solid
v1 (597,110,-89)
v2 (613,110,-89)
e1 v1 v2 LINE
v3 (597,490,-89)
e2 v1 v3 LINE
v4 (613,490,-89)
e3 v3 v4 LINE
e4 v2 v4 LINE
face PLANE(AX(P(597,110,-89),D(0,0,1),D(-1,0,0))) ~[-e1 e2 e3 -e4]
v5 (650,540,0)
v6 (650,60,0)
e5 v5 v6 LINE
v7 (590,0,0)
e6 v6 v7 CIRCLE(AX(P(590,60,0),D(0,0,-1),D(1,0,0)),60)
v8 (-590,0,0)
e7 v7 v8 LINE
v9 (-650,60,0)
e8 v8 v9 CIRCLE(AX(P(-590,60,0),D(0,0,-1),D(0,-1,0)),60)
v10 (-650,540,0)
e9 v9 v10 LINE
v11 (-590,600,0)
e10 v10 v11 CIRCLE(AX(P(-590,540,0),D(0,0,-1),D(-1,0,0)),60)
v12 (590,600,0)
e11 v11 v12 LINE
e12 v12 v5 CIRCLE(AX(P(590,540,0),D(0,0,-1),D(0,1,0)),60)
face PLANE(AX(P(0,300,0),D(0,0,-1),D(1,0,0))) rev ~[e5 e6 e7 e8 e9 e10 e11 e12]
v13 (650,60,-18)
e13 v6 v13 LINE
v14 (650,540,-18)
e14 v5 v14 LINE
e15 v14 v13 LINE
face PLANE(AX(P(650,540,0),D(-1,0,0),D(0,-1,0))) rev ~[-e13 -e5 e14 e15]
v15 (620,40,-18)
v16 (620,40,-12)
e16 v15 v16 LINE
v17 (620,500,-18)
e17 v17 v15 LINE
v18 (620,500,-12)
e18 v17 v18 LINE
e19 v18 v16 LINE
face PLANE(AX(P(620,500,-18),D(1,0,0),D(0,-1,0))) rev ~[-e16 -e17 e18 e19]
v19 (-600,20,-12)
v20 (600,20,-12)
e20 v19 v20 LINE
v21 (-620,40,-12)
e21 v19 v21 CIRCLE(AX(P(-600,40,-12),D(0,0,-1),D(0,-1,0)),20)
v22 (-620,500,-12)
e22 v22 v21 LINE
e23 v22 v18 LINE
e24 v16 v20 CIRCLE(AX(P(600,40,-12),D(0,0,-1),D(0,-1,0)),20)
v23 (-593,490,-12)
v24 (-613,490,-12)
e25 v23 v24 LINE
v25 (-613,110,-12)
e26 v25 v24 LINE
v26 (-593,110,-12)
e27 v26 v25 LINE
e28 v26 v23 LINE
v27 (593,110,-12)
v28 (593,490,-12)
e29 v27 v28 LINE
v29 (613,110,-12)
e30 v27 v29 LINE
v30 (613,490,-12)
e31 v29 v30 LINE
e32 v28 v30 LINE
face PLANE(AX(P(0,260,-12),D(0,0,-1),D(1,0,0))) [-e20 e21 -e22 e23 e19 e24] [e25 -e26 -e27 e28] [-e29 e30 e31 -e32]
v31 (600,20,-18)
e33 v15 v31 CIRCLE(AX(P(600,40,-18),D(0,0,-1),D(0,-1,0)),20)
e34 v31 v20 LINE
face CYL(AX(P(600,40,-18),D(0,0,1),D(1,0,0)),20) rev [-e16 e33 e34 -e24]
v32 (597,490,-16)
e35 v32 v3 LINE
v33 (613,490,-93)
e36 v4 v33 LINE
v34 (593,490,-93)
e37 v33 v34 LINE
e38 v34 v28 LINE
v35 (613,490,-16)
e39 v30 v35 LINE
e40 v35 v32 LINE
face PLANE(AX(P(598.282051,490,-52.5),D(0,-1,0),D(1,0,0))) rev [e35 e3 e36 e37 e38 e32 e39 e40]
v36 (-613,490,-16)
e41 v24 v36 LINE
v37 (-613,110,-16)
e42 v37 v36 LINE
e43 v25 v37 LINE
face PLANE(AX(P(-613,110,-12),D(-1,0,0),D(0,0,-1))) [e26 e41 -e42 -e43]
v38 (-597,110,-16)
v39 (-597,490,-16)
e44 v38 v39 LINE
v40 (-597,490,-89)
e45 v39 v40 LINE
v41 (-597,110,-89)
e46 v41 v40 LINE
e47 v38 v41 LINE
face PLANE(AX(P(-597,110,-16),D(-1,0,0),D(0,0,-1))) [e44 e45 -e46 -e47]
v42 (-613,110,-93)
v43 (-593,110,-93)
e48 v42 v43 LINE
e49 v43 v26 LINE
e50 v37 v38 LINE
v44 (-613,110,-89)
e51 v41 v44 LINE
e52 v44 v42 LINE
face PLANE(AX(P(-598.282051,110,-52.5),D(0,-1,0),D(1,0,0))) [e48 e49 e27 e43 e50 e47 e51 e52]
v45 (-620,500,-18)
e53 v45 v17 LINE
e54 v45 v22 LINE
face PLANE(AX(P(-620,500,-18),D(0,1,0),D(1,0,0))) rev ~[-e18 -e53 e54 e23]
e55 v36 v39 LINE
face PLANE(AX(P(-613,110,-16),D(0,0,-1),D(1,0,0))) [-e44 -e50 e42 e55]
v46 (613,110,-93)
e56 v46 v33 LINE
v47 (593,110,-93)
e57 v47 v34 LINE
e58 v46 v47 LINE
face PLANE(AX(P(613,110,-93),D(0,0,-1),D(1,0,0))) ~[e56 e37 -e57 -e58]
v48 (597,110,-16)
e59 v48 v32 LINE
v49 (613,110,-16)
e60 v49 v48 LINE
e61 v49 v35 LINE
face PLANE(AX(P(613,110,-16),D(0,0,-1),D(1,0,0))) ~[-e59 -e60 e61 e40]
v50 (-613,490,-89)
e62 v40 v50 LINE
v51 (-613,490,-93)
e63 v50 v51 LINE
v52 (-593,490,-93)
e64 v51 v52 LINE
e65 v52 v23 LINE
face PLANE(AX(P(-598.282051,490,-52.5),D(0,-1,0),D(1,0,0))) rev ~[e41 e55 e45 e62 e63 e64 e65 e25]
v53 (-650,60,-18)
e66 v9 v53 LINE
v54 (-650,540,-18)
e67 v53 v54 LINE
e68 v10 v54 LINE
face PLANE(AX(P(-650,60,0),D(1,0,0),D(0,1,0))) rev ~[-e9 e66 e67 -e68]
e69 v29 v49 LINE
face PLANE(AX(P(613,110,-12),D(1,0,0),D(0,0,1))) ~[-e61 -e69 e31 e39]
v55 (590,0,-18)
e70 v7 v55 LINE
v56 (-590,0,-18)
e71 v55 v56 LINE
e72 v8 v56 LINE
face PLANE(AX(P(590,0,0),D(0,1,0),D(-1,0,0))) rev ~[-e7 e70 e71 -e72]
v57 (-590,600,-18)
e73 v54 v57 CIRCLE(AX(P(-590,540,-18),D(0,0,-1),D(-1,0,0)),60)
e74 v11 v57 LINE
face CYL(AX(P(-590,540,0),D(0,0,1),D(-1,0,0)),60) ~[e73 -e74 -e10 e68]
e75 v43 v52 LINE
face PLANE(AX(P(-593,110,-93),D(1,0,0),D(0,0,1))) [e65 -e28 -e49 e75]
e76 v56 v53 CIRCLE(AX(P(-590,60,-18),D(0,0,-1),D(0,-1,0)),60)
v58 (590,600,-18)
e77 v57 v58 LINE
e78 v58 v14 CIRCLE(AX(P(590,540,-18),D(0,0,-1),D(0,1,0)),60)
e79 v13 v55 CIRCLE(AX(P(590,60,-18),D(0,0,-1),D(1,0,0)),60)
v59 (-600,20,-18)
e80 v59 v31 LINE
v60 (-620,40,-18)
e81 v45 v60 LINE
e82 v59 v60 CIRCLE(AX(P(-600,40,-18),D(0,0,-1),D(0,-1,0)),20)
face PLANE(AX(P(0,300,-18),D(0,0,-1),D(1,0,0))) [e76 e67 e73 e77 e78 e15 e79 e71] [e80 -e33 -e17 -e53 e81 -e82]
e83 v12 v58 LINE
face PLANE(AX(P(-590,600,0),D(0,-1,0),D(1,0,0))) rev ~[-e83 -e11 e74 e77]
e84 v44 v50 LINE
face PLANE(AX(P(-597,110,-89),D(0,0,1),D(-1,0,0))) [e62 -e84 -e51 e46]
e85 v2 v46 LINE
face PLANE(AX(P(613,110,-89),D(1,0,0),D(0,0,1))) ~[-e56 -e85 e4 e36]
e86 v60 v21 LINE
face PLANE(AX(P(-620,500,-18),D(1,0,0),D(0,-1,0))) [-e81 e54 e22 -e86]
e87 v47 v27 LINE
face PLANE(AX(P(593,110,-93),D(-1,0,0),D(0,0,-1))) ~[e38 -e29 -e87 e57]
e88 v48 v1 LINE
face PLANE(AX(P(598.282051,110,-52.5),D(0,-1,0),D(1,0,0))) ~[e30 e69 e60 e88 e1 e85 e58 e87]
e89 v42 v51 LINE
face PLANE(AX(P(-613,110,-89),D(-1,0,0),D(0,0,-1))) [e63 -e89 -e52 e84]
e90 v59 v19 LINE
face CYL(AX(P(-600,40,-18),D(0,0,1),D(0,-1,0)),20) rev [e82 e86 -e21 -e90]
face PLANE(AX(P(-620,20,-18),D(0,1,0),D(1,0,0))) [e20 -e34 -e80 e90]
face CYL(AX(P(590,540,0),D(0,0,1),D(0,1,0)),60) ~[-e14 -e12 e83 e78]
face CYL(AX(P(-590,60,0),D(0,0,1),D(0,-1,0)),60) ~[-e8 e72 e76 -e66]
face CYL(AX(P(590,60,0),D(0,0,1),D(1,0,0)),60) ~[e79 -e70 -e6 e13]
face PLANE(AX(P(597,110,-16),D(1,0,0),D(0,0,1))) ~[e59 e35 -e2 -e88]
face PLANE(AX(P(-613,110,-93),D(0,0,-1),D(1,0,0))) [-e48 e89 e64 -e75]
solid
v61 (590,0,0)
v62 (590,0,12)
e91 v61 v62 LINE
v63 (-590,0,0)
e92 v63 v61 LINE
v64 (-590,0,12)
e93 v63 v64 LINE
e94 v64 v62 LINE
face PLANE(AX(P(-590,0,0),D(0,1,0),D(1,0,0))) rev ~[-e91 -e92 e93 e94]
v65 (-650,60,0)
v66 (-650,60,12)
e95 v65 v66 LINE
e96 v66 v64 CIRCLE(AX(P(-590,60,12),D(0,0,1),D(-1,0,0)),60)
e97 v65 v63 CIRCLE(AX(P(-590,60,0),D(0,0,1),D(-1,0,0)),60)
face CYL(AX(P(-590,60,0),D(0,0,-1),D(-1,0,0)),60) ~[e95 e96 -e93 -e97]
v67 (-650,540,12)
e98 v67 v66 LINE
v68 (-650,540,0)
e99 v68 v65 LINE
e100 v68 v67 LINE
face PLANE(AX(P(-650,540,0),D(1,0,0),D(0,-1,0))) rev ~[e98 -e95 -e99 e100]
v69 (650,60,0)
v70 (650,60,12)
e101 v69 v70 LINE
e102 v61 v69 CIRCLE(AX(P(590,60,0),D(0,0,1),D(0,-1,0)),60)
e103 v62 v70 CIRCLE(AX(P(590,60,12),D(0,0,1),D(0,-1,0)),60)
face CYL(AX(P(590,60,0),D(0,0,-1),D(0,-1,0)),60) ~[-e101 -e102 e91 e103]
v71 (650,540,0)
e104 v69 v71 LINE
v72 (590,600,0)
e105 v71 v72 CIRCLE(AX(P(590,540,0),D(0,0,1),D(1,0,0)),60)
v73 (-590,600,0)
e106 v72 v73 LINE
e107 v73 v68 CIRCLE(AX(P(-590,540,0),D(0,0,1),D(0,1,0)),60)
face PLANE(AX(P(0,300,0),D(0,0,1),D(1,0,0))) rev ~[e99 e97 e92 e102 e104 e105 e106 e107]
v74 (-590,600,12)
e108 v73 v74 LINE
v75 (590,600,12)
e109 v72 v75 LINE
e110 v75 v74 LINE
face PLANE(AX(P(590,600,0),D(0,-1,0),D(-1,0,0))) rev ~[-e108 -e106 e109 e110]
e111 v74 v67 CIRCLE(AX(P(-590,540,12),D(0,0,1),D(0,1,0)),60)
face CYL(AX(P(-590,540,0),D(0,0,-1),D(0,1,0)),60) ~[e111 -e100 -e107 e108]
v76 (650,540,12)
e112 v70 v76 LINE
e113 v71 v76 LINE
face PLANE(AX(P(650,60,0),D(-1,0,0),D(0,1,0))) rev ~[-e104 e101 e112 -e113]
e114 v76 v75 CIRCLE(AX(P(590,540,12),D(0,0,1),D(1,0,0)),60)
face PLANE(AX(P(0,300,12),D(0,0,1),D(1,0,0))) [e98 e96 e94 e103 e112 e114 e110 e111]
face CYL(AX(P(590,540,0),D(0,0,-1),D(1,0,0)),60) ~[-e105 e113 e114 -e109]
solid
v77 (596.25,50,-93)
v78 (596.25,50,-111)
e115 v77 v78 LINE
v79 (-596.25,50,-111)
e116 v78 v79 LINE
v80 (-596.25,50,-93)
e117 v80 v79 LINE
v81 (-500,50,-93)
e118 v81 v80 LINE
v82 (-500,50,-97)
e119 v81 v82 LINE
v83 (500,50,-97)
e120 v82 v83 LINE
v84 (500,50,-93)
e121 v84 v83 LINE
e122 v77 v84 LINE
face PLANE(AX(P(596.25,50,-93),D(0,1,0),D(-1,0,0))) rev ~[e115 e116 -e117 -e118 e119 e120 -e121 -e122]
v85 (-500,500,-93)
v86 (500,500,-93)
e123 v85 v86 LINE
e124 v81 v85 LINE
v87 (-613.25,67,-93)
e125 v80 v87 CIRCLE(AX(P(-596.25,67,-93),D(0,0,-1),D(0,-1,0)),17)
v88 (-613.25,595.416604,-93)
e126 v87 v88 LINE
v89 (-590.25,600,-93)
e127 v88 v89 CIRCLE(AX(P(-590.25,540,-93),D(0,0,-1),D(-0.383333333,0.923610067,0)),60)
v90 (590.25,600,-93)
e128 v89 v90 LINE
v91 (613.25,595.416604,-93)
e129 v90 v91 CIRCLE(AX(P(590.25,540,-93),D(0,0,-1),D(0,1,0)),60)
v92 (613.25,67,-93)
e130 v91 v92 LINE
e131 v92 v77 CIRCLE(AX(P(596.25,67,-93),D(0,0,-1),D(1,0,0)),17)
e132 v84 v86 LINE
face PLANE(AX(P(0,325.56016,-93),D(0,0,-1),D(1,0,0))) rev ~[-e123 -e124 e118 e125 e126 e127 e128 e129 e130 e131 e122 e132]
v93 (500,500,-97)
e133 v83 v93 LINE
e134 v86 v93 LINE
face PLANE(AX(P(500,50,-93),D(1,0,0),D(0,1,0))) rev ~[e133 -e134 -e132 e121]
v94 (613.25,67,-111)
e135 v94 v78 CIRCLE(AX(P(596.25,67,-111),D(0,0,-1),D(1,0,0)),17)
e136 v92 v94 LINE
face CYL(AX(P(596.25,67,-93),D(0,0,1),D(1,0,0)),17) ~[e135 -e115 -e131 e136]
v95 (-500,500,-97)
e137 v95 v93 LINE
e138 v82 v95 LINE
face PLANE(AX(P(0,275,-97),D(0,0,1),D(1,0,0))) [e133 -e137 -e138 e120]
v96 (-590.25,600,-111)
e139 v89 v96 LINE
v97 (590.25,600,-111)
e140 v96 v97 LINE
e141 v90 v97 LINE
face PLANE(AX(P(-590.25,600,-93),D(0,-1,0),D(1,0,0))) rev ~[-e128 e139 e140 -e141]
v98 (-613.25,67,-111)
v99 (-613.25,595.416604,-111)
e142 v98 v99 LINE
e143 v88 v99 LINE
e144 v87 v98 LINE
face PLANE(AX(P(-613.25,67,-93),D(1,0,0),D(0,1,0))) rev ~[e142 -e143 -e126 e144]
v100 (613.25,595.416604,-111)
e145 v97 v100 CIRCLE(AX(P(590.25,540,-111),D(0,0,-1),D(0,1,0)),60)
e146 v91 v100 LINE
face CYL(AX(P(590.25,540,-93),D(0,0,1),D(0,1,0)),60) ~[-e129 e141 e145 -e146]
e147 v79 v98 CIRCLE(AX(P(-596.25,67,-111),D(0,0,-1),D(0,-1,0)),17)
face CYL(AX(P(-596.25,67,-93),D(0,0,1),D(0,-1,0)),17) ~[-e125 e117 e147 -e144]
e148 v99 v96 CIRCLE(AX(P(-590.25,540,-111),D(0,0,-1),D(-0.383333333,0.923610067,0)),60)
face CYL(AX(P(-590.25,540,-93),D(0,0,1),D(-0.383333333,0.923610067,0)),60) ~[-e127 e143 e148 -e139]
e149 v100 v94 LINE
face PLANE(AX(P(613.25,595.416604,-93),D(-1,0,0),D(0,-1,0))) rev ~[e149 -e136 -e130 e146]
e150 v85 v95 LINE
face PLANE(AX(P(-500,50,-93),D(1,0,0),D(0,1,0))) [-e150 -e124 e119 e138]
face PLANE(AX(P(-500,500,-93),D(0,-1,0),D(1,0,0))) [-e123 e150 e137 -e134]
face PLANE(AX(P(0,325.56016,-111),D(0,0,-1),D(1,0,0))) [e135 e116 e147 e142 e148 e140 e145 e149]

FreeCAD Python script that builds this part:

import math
import FreeCAD as App
import Part
import Sketcher
from FreeCAD import Vector


def edges_at(feature, points):
    """Names of the edges that pass closest to the given points."""
    edges = feature.Shape.Edges
    near = lambda p: min(range(len(edges)), key=lambda i: edges[i].distToShape(Part.Vertex(*p))[0])
    return sorted({f"Edge{near(p) + 1}" for p in points})

doc = App.newDocument("Part")
body = doc.addObject("PartDesign::Body", "Body")

# Sketch on XY plane
sketch1 = body.newObject("Sketcher::SketchObject", "Sketch")
sketch1.AttachmentSupport = (doc.getObject("XY_Plane"), [""])
sketch1.MapMode = "FlatFace"
sketch1.addGeometry([
    Part.ArcOfCircle(Part.Circle(Vector(-590, 60, 0), Vector(0, 0, 1), 60), math.radians(180), math.radians(270)),  # 0
    Part.LineSegment(Vector(-590, 0, 0), Vector(590, 0, 0)),  # 1
    Part.ArcOfCircle(Part.Circle(Vector(590, 60, 0), Vector(0, 0, 1), 60), math.radians(-90), math.radians(0)),  # 2
    Part.LineSegment(Vector(650, 60, 0), Vector(650, 540, 0)),  # 3
    Part.ArcOfCircle(Part.Circle(Vector(590, 540, 0), Vector(0, 0, 1), 60), math.radians(0), math.radians(90)),  # 4
    Part.LineSegment(Vector(590, 600, 0), Vector(-590, 600, 0)),  # 5
    Part.ArcOfCircle(Part.Circle(Vector(-590, 540, 0), Vector(0, 0, 1), 60), math.radians(90), math.radians(180)),  # 6
    Part.LineSegment(Vector(-650, 540, 0), Vector(-650, 60, 0)),  # 7
], False)
sketch1.addConstraint([
    Sketcher.Constraint("Tangent", 0, 2, 1, 1),
    Sketcher.Constraint("Tangent", 1, 2, 2, 1),
    Sketcher.Constraint("Tangent", 2, 2, 3, 1),
    Sketcher.Constraint("Tangent", 3, 2, 4, 1),
    Sketcher.Constraint("Tangent", 4, 2, 5, 1),
    Sketcher.Constraint("Tangent", 5, 2, 6, 1),
    Sketcher.Constraint("Tangent", 6, 2, 7, 1),
    Sketcher.Constraint("Tangent", 7, 2, 0, 1),
    Sketcher.Constraint("Horizontal", 1),
    Sketcher.Constraint("Vertical", 3),
    Sketcher.Constraint("Horizontal", 5),
    Sketcher.Constraint("Vertical", 7),
    Sketcher.Constraint("Equal", 0, 2),
    Sketcher.Constraint("Equal", 2, 4),
    Sketcher.Constraint("Equal", 4, 6),
    Sketcher.Constraint("Symmetric", 0, 2, 1, 2, -1, 1),
    Sketcher.Constraint("Radius", 0, 60.0),
    Sketcher.Constraint("DistanceX", 1, 1, 1, 2, 1180.0),
    Sketcher.Constraint("DistanceY", 3, 1, 3, 2, 480.0),
])
pad1 = body.newObject("PartDesign::Pad", "Pad")
pad1.Profile = sketch1
pad1.Length = 12
body2 = doc.addObject("PartDesign::Body", "Body001")

# Sketch on XY plane
sketch2 = body2.newObject("Sketcher::SketchObject", "Sketch001")
sketch2.AttachmentSupport = (doc.getObject("XY_Plane001"), [""])
sketch2.MapMode = "FlatFace"
sketch2.addGeometry([
    Part.ArcOfCircle(Part.Circle(Vector(-590, 540, 0), Vector(0, 0, 1), 60), math.radians(90), math.radians(180)),  # 0
    Part.LineSegment(Vector(-590, 600, 0), Vector(590, 600, 0)),  # 1
    Part.ArcOfCircle(Part.Circle(Vector(590, 540, 0), Vector(0, 0, 1), 60), math.radians(0), math.radians(90)),  # 2
    Part.LineSegment(Vector(650, 540, 0), Vector(650, 60, 0)),  # 3
    Part.ArcOfCircle(Part.Circle(Vector(590, 60, 0), Vector(0, 0, 1), 60), math.radians(-90), math.radians(0)),  # 4
    Part.LineSegment(Vector(590, 0, 0), Vector(-590, 0, 0)),  # 5
    Part.ArcOfCircle(Part.Circle(Vector(-590, 60, 0), Vector(0, 0, 1), 60), math.radians(180), math.radians(270)),  # 6
    Part.LineSegment(Vector(-650, 60, 0), Vector(-650, 540, 0)),  # 7
], False)
sketch2.addConstraint([
    Sketcher.Constraint("Tangent", 0, 1, 1, 1),
    Sketcher.Constraint("Tangent", 1, 2, 2, 2),
    Sketcher.Constraint("Tangent", 2, 1, 3, 1),
    Sketcher.Constraint("Tangent", 3, 2, 4, 2),
    Sketcher.Constraint("Tangent", 4, 1, 5, 1),
    Sketcher.Constraint("Tangent", 5, 2, 6, 2),
    Sketcher.Constraint("Tangent", 6, 1, 7, 1),
    Sketcher.Constraint("Tangent", 7, 2, 0, 2),
    Sketcher.Constraint("Horizontal", 1),
    Sketcher.Constraint("Vertical", 3),
    Sketcher.Constraint("Horizontal", 5),
    Sketcher.Constraint("Vertical", 7),
    Sketcher.Constraint("Equal", 0, 2),
    Sketcher.Constraint("Equal", 2, 4),
    Sketcher.Constraint("Equal", 4, 6),
    Sketcher.Constraint("Symmetric", 4, 1, 5, 2, -1, 1),
    Sketcher.Constraint("Radius", 0, 60.0),
    Sketcher.Constraint("DistanceX", 1, 1, 1, 2, 1180.0),
    Sketcher.Constraint("DistanceY", 3, 2, 3, 1, 480.0),
])
pad2 = body2.newObject("PartDesign::Pad", "Pad001")
pad2.Profile = sketch2
pad2.Length = 18
pad2.Reversed = True

# Sketch on XY plane
sketch3 = body2.newObject("Sketcher::SketchObject", "Sketch002")
sketch3.AttachmentSupport = (doc.getObject("XY_Plane001"), [""])
sketch3.MapMode = "FlatFace"
sketch3.AttachmentOffset = App.Placement(Vector(0, 0, -18), App.Rotation())
sketch3.addGeometry([
    Part.LineSegment(Vector(-620, 20, 0), Vector(-620, 500, 0)),
    Part.LineSegment(Vector(-620, 500, 0), Vector(620, 500, 0)),
    Part.LineSegment(Vector(620, 500, 0), Vector(620, 20, 0)),
    Part.LineSegment(Vector(620, 20, 0), Vector(-620, 20, 0)),
], False)
sketch3.addConstraint([
    Sketcher.Constraint("Coincident", 0, 2, 1, 1),
    Sketcher.Constraint("Coincident", 1, 2, 2, 1),
    Sketcher.Constraint("Coincident", 2, 2, 3, 1),
    Sketcher.Constraint("Coincident", 3, 2, 0, 1),
    Sketcher.Constraint("Vertical", 0),
    Sketcher.Constraint("Horizontal", 1),
    Sketcher.Constraint("Vertical", 2),
    Sketcher.Constraint("Horizontal", 3),
    Sketcher.Constraint("DistanceX", 1, 1, 1, 2, 1240.0),
    Sketcher.Constraint("DistanceY", 0, 1, 0, 2, 480.0),
    Sketcher.Constraint("DistanceX", 0, 2, -1, 1, 620.0),
    Sketcher.Constraint("DistanceY", -1, 1, 0, 2, 500.0),
])
pocket1 = body2.newObject("PartDesign::Pocket", "Pocket")
pocket1.Profile = sketch3
pocket1.Length = 6
pocket1.Reversed = True
doc.recompute()

fillet = body2.newObject("PartDesign::Fillet", "Fillet")
fillet.Base = (pocket1, edges_at(pocket1, [(-620, 20, -15), (620, 20, -15)]))
fillet.Radius = 20
body3 = doc.addObject("PartDesign::Body", "Body002")

# Sketch on XZ plane
sketch4 = body3.newObject("Sketcher::SketchObject", "Sketch003")
sketch4.AttachmentSupport = (doc.getObject("XZ_Plane002"), [""])
sketch4.MapMode = "FlatFace"
sketch4.AttachmentOffset = App.Placement(Vector(0, 0, -110), App.Rotation())
sketch4.addGeometry([
    Part.LineSegment(Vector(-613, -12, 0), Vector(-613, -16, 0)),  # 0
    Part.LineSegment(Vector(-613, -16, 0), Vector(-597, -16, 0)),  # 1
    Part.LineSegment(Vector(-597, -16, 0), Vector(-597, -89, 0)),  # 2
    Part.LineSegment(Vector(-597, -89, 0), Vector(-613, -89, 0)),  # 3
    Part.LineSegment(Vector(-613, -89, 0), Vector(-613, -93, 0)),  # 4
    Part.LineSegment(Vector(-613, -93, 0), Vector(-593, -93, 0)),  # 5
    Part.LineSegment(Vector(-593, -93, 0), Vector(-593, -12, 0)),  # 6
    Part.LineSegment(Vector(-593, -12, 0), Vector(-613, -12, 0)),  # 7
], False)
sketch4.addConstraint([
    Sketcher.Constraint("Coincident", 0, 2, 1, 1),
    Sketcher.Constraint("Coincident", 1, 2, 2, 1),
    Sketcher.Constraint("Coincident", 2, 2, 3, 1),
    Sketcher.Constraint("Coincident", 3, 2, 4, 1),
    Sketcher.Constraint("Coincident", 4, 2, 5, 1),
    Sketcher.Constraint("Coincident", 5, 2, 6, 1),
    Sketcher.Constraint("Coincident", 6, 2, 7, 1),
    Sketcher.Constraint("Coincident", 7, 2, 0, 1),
    Sketcher.Constraint("Vertical", 0),
    Sketcher.Constraint("Horizontal", 1),
    Sketcher.Constraint("Vertical", 2),
    Sketcher.Constraint("Horizontal", 3),
    Sketcher.Constraint("Vertical", 4),
    Sketcher.Constraint("Horizontal", 5),
    Sketcher.Constraint("Vertical", 6),
    Sketcher.Constraint("Horizontal", 7),
    Sketcher.Constraint("Vertical", 0, 2, 3, 2),
    Sketcher.Constraint("Equal", 0, 4),
    Sketcher.Constraint("DistanceX", 1, 1, 1, 2, 16.0),
    Sketcher.Constraint("DistanceX", 5, 1, 5, 2, 20.0),
    Sketcher.Constraint("DistanceY", 0, 2, 0, 1, 4.0),
    Sketcher.Constraint("DistanceY", 2, 2, 2, 1, 73.0),
    Sketcher.Constraint("DistanceX", 0, 2, -1, 1, 613.0),
    Sketcher.Constraint("DistanceY", 0, 2, -1, 1, 16.0),
])
pad3 = body3.newObject("PartDesign::Pad", "Pad002")
pad3.Profile = sketch4
pad3.Length = 380
pad3.Reversed = True
doc.recompute()

body4 = doc.addObject("PartDesign::Body", "Body003")
body4.BaseFeature = body3
boolean = body2.newObject("PartDesign::Boolean", "Boolean")
boolean.Type = "Fuse"
boolean.addObjects([body4])
doc.recompute()

mirroring = doc.addObject("Part::Mirroring", "Mirroring")
mirroring.Source = body3
mirroring.Base = Vector(0, 0, 0)
mirroring.Normal = Vector(1, 0, 0)
body5 = doc.addObject("PartDesign::Body", "Body004")
body5.BaseFeature = mirroring
boolean2 = body2.newObject("PartDesign::Boolean", "Boolean001")
boolean2.Type = "Fuse"
boolean2.addObjects([body5])
doc.recompute()
body6 = doc.addObject("PartDesign::Body", "Body005")

# Sketch on XY plane
sketch5 = body6.newObject("Sketcher::SketchObject", "Sketch004")
sketch5.AttachmentSupport = (doc.getObject("XY_Plane005"), [""])
sketch5.MapMode = "FlatFace"
sketch5.AttachmentOffset = App.Placement(Vector(0, 0, -93), App.Rotation())
sketch5.addGeometry([
    Part.LineSegment(Vector(596, 50, 0), Vector(-596, 50, 0)),  # 0
    Part.ArcOfCircle(Part.Circle(Vector(-596, 67, 0), Vector(0, 0, 1), 17), math.radians(180), math.radians(270)),  # 1
    Part.LineSegment(Vector(-613, 67, 0), Vector(-613, 595, 0)),  # 2
    Part.ArcOfCircle(Part.Circle(Vector(-590, 540, 0), Vector(0, 0, 1), 60), math.radians(90), math.radians(113)),  # 3
    Part.LineSegment(Vector(-590, 600, 0), Vector(590, 600, 0)),  # 4
    Part.ArcOfCircle(Part.Circle(Vector(590, 540, 0), Vector(0, 0, 1), 60), math.radians(67), math.radians(90)),  # 5
    Part.LineSegment(Vector(613, 595, 0), Vector(613, 67, 0)),  # 6
    Part.ArcOfCircle(Part.Circle(Vector(596, 67, 0), Vector(0, 0, 1), 17), math.radians(-90), math.radians(0)),  # 7
], False)
sketch5.addConstraint([
    Sketcher.Constraint("Tangent", 0, 2, 1, 2),
    Sketcher.Constraint("Tangent", 1, 1, 2, 1),
    Sketcher.Constraint("Coincident", 2, 2, 3, 2),
    Sketcher.Constraint("Tangent", 3, 1, 4, 1),
    Sketcher.Constraint("Tangent", 4, 2, 5, 2),
    Sketcher.Constraint("Coincident", 5, 1, 6, 1),
    Sketcher.Constraint("Tangent", 6, 2, 7, 2),
    Sketcher.Constraint("Tangent", 7, 1, 0, 1),
    Sketcher.Constraint("Horizontal", 0),
    Sketcher.Constraint("Vertical", 2),
    Sketcher.Constraint("Horizontal", 4),
    Sketcher.Constraint("Vertical", 6),
    Sketcher.Constraint("Equal", 3, 5),
    Sketcher.Constraint("Equal", 1, 7),
    Sketcher.Constraint("Symmetric", 2, 2, 5, 1, -2),
    Sketcher.Constraint("Radius", 1, 17.0),
    Sketcher.Constraint("Radius", 3, 60.0),
    Sketcher.Constraint("DistanceX", 0, 2, 0, 1, 1192.5),
    Sketcher.Constraint("DistanceX", 4, 1, 4, 2, 1180.5),
    Sketcher.Constraint("DistanceY", -1, 1, 1, 3, 67.0),
    Sketcher.Constraint("DistanceY", -1, 1, 3, 3, 540.0),
])
pad4 = body6.newObject("PartDesign::Pad", "Pad003")
pad4.Profile = sketch5
pad4.Length = 18
pad4.Reversed = True

# Sketch on XY plane
sketch6 = body6.newObject("Sketcher::SketchObject", "Sketch005")
sketch6.AttachmentSupport = (doc.getObject("XY_Plane005"), [""])
sketch6.MapMode = "FlatFace"
sketch6.AttachmentOffset = App.Placement(Vector(0, 0, -93), App.Rotation())
sketch6.addGeometry([
    Part.LineSegment(Vector(-500, 500, 0), Vector(-500, 50, 0)),
    Part.LineSegment(Vector(-500, 50, 0), Vector(500, 50, 0)),
    Part.LineSegment(Vector(500, 50, 0), Vector(500, 500, 0)),
    Part.LineSegment(Vector(500, 500, 0), Vector(-500, 500, 0)),
], False)
sketch6.addConstraint([
    Sketcher.Constraint("Coincident", 0, 2, 1, 1),
    Sketcher.Constraint("Coincident", 1, 2, 2, 1),
    Sketcher.Constraint("Coincident", 2, 2, 3, 1),
    Sketcher.Constraint("Coincident", 3, 2, 0, 1),
    Sketcher.Constraint("Vertical", 0),
    Sketcher.Constraint("Horizontal", 1),
    Sketcher.Constraint("Vertical", 2),
    Sketcher.Constraint("Horizontal", 3),
    Sketcher.Constraint("DistanceX", 1, 1, 1, 2, 1000.0),
    Sketcher.Constraint("DistanceY", 0, 2, 0, 1, 450.0),
    Sketcher.Constraint("DistanceX", 0, 2, -1, 1, 500.0),
    Sketcher.Constraint("DistanceY", -1, 1, 0, 2, 50.0),
])
pocket2 = body6.newObject("PartDesign::Pocket", "Pocket001")
pocket2.Profile = sketch6
pocket2.Length = 4
mirroring.Visibility = False

doc.recompute()
